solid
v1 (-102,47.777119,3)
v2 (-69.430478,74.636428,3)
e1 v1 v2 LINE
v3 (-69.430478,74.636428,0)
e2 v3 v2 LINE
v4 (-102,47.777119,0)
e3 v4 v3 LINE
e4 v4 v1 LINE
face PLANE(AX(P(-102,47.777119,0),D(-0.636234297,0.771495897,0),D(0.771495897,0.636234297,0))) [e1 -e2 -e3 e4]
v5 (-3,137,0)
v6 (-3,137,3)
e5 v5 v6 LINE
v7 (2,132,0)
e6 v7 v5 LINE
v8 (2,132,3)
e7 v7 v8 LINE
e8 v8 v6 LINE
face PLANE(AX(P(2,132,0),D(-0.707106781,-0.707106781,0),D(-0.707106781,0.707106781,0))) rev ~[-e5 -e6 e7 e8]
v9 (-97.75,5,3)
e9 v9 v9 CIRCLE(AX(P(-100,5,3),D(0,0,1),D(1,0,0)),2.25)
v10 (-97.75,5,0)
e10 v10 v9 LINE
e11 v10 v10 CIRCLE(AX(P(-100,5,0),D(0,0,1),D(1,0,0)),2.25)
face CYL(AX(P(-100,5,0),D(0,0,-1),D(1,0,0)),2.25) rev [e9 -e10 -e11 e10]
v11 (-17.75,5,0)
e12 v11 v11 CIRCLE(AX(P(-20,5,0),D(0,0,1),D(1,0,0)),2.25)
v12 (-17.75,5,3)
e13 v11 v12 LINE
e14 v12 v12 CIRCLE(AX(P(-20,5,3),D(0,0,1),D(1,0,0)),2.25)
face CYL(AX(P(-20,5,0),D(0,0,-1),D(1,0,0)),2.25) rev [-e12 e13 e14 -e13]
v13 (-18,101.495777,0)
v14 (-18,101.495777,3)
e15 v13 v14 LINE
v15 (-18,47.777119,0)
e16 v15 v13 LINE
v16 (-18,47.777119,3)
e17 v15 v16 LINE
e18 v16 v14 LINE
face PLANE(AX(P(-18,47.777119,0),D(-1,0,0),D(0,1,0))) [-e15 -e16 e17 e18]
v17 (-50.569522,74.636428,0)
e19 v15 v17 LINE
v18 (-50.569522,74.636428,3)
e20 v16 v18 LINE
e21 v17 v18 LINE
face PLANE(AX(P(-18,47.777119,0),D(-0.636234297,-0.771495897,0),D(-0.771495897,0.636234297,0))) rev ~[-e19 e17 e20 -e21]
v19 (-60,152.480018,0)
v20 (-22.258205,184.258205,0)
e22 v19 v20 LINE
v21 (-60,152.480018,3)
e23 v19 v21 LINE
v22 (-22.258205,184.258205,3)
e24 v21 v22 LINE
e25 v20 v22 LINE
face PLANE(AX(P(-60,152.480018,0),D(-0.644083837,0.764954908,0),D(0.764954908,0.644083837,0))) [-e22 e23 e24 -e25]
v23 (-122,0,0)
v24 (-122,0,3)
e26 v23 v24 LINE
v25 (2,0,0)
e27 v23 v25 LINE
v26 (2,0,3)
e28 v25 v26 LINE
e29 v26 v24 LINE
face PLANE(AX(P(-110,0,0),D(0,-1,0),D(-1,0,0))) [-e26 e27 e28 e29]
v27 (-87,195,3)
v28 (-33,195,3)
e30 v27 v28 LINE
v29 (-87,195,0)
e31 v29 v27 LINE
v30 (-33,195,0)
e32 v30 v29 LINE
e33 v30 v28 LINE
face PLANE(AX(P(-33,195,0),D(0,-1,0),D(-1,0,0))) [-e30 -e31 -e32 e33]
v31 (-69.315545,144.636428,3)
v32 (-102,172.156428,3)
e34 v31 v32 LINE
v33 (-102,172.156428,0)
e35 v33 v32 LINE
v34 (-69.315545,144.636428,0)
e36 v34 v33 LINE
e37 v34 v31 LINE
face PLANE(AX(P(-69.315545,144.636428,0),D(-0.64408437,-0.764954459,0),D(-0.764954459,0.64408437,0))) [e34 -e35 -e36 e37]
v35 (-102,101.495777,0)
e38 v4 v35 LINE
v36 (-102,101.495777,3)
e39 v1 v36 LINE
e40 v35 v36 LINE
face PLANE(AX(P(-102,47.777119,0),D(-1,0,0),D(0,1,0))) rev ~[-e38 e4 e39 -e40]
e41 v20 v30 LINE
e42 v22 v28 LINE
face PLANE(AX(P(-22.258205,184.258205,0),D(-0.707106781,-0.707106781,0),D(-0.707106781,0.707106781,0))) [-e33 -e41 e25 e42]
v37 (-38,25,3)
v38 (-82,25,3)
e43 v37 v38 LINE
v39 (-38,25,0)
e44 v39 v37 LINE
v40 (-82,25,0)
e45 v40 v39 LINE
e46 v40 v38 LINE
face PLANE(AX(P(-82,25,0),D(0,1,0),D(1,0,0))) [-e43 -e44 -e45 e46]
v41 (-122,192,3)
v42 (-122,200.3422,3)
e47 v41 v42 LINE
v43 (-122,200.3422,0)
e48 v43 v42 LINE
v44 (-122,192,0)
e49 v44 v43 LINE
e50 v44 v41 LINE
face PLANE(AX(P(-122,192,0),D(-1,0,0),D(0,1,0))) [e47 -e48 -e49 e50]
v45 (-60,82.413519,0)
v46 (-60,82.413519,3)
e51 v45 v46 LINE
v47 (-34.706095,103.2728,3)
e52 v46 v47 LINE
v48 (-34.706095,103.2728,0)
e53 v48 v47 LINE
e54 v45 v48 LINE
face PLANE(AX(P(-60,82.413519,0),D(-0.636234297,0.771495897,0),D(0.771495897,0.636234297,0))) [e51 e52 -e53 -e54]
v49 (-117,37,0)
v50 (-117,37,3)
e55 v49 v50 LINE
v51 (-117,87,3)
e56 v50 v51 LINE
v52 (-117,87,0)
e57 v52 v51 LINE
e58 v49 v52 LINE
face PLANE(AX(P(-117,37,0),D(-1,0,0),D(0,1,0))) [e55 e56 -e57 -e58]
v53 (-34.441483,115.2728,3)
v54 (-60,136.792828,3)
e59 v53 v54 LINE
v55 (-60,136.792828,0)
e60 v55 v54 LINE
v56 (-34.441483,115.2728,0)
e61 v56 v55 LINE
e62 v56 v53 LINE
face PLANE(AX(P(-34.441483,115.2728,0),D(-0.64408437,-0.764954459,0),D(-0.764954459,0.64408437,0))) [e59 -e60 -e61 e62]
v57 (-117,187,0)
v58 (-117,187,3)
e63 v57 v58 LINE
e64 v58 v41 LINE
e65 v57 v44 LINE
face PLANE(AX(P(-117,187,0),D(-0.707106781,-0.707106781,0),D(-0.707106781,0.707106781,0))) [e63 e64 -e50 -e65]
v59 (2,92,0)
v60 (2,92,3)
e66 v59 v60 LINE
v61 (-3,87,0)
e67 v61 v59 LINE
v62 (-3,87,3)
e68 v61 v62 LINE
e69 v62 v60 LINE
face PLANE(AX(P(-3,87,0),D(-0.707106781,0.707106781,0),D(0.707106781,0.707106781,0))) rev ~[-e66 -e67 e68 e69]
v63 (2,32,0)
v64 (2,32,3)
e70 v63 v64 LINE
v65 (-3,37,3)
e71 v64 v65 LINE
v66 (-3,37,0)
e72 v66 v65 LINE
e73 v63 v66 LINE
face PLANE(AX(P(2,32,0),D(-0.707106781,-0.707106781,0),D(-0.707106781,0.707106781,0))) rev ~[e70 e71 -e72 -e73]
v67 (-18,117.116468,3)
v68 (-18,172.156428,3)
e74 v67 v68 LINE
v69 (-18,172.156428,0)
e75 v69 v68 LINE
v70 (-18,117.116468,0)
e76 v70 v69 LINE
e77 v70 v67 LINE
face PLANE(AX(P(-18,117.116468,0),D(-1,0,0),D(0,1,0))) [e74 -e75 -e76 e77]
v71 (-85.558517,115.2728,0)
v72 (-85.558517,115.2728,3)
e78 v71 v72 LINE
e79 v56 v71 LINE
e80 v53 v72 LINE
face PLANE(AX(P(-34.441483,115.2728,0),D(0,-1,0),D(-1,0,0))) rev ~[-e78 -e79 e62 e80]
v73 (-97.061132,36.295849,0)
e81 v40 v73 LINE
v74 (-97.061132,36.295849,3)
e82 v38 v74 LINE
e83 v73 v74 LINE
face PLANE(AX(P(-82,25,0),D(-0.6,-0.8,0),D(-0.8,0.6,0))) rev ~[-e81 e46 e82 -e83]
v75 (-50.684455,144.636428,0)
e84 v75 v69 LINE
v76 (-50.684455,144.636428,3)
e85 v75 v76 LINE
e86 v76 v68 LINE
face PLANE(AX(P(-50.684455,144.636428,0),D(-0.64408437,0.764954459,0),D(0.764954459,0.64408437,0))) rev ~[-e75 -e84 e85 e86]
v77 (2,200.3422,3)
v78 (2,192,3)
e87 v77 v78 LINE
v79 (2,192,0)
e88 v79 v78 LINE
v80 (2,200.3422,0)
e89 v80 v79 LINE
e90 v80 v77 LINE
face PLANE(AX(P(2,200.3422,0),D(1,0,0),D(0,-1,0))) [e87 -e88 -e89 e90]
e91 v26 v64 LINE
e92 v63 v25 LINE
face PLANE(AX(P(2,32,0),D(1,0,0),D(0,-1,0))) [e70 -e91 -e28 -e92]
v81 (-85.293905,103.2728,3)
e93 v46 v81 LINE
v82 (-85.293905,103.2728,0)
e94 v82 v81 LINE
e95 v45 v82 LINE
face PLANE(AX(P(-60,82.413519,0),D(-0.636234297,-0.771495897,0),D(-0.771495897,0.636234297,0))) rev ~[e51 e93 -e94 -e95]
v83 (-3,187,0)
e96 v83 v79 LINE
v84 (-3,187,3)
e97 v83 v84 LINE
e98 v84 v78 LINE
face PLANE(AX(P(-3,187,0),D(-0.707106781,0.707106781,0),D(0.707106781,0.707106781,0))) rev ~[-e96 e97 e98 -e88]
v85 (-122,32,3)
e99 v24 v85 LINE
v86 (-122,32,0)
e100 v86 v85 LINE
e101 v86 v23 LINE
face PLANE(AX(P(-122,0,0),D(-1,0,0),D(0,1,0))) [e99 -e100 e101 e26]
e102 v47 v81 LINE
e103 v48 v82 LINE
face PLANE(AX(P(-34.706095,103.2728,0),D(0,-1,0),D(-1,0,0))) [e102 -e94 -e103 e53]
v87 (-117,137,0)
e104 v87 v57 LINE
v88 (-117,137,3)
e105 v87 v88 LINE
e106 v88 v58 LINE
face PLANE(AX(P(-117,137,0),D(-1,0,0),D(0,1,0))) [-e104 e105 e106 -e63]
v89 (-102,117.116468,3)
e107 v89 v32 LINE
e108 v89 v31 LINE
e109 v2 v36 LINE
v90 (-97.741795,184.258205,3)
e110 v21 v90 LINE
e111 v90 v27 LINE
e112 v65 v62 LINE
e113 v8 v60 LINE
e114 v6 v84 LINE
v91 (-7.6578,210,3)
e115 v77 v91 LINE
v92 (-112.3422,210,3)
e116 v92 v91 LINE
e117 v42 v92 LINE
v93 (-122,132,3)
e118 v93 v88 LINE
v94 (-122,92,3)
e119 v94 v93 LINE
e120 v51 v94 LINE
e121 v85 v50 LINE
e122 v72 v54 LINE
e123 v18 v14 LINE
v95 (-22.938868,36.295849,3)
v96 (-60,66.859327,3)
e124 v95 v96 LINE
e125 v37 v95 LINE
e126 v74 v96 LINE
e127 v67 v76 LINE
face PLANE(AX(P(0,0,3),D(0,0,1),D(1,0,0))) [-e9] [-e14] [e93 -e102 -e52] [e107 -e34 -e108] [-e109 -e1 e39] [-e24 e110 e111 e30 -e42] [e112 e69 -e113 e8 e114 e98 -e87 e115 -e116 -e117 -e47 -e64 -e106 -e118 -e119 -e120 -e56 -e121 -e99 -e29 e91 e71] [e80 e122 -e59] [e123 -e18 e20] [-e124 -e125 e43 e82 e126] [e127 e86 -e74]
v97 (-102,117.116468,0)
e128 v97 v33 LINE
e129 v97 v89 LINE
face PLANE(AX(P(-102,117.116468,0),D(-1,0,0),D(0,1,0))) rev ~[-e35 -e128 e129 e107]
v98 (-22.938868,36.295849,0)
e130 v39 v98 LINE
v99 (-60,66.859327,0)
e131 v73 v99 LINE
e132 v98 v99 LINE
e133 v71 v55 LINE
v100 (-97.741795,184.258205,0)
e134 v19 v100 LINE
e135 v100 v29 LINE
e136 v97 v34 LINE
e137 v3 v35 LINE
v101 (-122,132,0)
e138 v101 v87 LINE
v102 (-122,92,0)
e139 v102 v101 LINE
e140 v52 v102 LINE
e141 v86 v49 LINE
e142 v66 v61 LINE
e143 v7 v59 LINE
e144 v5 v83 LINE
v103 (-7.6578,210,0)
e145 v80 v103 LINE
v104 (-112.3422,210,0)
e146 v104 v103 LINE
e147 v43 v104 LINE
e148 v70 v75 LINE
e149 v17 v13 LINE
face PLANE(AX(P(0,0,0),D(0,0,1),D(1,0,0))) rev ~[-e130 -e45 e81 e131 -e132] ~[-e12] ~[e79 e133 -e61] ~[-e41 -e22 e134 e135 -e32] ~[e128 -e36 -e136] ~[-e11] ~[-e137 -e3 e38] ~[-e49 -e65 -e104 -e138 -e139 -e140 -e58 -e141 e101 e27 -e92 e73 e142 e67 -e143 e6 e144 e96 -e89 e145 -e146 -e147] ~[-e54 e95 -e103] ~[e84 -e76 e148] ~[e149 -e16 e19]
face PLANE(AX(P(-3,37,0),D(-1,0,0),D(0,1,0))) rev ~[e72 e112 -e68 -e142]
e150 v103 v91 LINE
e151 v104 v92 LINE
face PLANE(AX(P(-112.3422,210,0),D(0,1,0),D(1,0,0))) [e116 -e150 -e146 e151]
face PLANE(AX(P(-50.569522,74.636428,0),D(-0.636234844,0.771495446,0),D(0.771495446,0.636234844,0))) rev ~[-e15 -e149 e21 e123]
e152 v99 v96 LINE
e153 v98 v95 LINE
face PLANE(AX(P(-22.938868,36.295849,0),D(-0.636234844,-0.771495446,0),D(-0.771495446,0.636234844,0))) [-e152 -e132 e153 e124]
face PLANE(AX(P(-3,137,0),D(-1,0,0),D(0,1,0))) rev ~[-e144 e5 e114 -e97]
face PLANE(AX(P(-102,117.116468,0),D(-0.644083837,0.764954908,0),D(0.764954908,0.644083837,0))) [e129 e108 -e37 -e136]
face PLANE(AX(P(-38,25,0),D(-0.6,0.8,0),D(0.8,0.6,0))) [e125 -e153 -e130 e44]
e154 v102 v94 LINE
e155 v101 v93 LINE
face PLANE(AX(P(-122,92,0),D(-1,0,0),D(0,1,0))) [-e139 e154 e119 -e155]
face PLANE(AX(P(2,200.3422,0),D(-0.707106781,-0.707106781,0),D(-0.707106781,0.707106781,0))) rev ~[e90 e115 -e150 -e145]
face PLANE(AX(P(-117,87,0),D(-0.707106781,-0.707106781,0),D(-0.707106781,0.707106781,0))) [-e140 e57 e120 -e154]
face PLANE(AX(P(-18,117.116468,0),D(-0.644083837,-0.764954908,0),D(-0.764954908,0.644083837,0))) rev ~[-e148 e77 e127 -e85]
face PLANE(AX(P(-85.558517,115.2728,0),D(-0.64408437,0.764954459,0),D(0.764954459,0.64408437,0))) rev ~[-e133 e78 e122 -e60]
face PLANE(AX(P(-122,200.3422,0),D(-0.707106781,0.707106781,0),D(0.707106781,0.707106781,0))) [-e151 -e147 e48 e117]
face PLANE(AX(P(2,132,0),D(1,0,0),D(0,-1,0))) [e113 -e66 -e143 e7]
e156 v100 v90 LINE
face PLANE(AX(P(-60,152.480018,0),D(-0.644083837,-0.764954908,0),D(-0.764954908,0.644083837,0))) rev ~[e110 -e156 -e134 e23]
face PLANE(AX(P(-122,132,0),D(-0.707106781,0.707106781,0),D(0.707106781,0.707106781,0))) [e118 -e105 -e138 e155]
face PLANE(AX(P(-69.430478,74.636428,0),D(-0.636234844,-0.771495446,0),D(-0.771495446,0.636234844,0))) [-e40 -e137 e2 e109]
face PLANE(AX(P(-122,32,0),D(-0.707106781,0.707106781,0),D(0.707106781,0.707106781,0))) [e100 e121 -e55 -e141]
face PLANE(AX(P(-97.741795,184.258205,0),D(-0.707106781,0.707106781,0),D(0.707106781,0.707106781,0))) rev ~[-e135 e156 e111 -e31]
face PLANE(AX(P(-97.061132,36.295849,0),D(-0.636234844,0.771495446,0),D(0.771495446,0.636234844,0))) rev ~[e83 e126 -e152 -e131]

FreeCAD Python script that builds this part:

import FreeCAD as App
import Part
import Sketcher
Q = App.Units.Quantity


def add_polygon(sketch, points):
    """Adds a closed chain of lines whose ends are joined by coincident constraints."""
    first, n = sketch.GeometryCount, len(points)
    for a, b in zip(points, points[1:] + points[:1]):
        sketch.addGeometry(Part.LineSegment(App.Vector(*a, 0), App.Vector(*b, 0)), False)
    for i in range(n):
        sketch.addConstraint(Sketcher.Constraint("Coincident", first + i, 2, first + (i + 1) % n, 1))

doc = App.newDocument("Part")
body = doc.addObject("PartDesign::Body", "Body")

# Sketch on XY plane
sketch1 = body.newObject("Sketcher::SketchObject", "Sketch")
sketch1.AttachmentSupport = (doc.getObject("XY_Plane"), [""])
sketch1.MapMode = "FlatFace"
add_polygon(sketch1, [(-122, 0), (2, 0), (2, 32), (-3, 37), (-3, 87), (2, 92), (2, 132), (-3, 137), (-3, 187), (2, 192), (2, 200.3), (-7.7, 210), (-112.3, 210), (-122, 200.3), (-122, 192), (-117, 187), (-117, 137), (-122, 132), (-122, 92), (-117, 87), (-117, 37), (-122, 32)])  # lines 0-21
sketch1.addGeometry(Part.Circle(App.Vector(-100, 5, 0), App.Vector(0, 0, 1), 2.2), False)  # 22
sketch1.addGeometry(Part.Circle(App.Vector(-20, 5, 0), App.Vector(0, 0, 1), 2.2), False)  # 23
add_polygon(sketch1, [(-22.9, 36.3), (-38, 25), (-82, 25), (-97.1, 36.3), (-60, 66.9)])  # lines 24-28
add_polygon(sketch1, [(-18, 101.5), (-18, 47.8), (-50.6, 74.6)])  # lines 29-31
add_polygon(sketch1, [(-18, 172.2), (-18, 117.1), (-50.7, 144.6)])  # lines 32-34
add_polygon(sketch1, [(-33, 195), (-22.3, 184.3), (-60, 152.5), (-97.7, 184.3), (-87, 195)])  # lines 35-39
add_polygon(sketch1, [(-102, 117.1), (-102, 172.2), (-69.3, 144.6)])  # lines 40-42
add_polygon(sketch1, [(-102, 47.8), (-102, 101.5), (-69.4, 74.6)])  # lines 43-45
add_polygon(sketch1, [(-34.7, 103.3), (-60, 82.4), (-85.3, 103.3)])  # lines 46-48
add_polygon(sketch1, [(-60, 136.8), (-34.4, 115.3), (-85.6, 115.3)])  # lines 49-51
sketch1.addConstraint([
    Sketcher.Constraint("Horizontal", 0),
    Sketcher.Constraint("Vertical", 1),
    Sketcher.Constraint("Vertical", 3),
    Sketcher.Constraint("Vertical", 5),
    Sketcher.Constraint("Vertical", 7),
    Sketcher.Constraint("Vertical", 9),
    Sketcher.Constraint("Horizontal", 11),
    Sketcher.Constraint("Vertical", 13),
    Sketcher.Constraint("Vertical", 15),
    Sketcher.Constraint("Vertical", 17),
    Sketcher.Constraint("Vertical", 19),
    Sketcher.Constraint("Vertical", 21),
    Sketcher.Constraint("Horizontal", 25),
    Sketcher.Constraint("Vertical", 29),
    Sketcher.Constraint("Vertical", 32),
    Sketcher.Constraint("Horizontal", 39),
    Sketcher.Constraint("Vertical", 40),
    Sketcher.Constraint("Vertical", 43),
    Sketcher.Constraint("Horizontal", 48),
    Sketcher.Constraint("Horizontal", 50),
    Sketcher.Constraint("Equal", 22, 23),
    Sketcher.Constraint("PointOnObject", 0, 2, -1),
    Sketcher.Constraint("Perpendicular", 2, 4),
    Sketcher.Constraint("Perpendicular", 4, 6),
    Sketcher.Constraint("Perpendicular", 6, 8),
    Sketcher.Constraint("Perpendicular", 8, 10),
    Sketcher.Constraint("Perpendicular", 10, 12),
    Sketcher.Constraint("Perpendicular", 12, 14),
    Sketcher.Constraint("Perpendicular", 14, 16),
    Sketcher.Constraint("Perpendicular", 16, 18),
    Sketcher.Constraint("Perpendicular", 18, 20),
    Sketcher.Constraint("Parallel", 28, 30),
    Sketcher.Constraint("Parallel", 27, 31),
    Sketcher.Constraint("Perpendicular", 20, 35),
    Sketcher.Constraint("Parallel", 34, 36),
    Sketcher.Constraint("Parallel", 33, 37),
    Sketcher.Constraint("Perpendicular", 35, 38),
    Sketcher.Constraint("Parallel", 37, 41),
    Sketcher.Constraint("Parallel", 36, 42),
    Sketcher.Constraint("Parallel", 30, 44),
    Sketcher.Constraint("Parallel", 31, 45),
    Sketcher.Constraint("Parallel", 45, 46),
    Sketcher.Constraint("Parallel", 44, 47),
    Sketcher.Constraint("Parallel", 41, 49),
    Sketcher.Constraint("Parallel", 42, 51),
    Sketcher.Constraint("Horizontal", 22, 3, 23, 3),
    Sketcher.Constraint("Horizontal", 9, 2, 12, 2),
    Sketcher.Constraint("Horizontal", 8, 2, 13, 2),
    Sketcher.Constraint("Horizontal", 7, 2, 14, 2),
    Sketcher.Constraint("Horizontal", 6, 2, 15, 2),
    Sketcher.Constraint("Horizontal", 5, 2, 16, 2),
    Sketcher.Constraint("Horizontal", 4, 2, 17, 2),
    Sketcher.Constraint("Horizontal", 3, 2, 18, 2),
    Sketcher.Constraint("Horizontal", 2, 2, 19, 2),
    Sketcher.Constraint("Horizontal", 1, 2, 20, 2),
    Sketcher.Constraint("Horizontal", 26, 2, 28, 2),
    Sketcher.Constraint("Horizontal", 35, 2, 37, 2),
    Sketcher.Constraint("Horizontal", 34, 2, 40, 2),
    Sketcher.Constraint("Horizontal", 33, 2, 41, 2),
    Sketcher.Constraint("Horizontal", 32, 2, 42, 2),
    Sketcher.Constraint("Horizontal", 31, 2, 43, 2),
    Sketcher.Constraint("Horizontal", 30, 2, 44, 2),
    Sketcher.Constraint("Horizontal", 29, 2, 45, 2),
    Sketcher.Constraint("Vertical", 1, 2, 4, 2),
    Sketcher.Constraint("Vertical", 3, 2, 6, 2),
    Sketcher.Constraint("Vertical", 5, 2, 8, 2),
    Sketcher.Constraint("Vertical", 13, 2, 16, 2),
    Sketcher.Constraint("Vertical", 31, 2, 32, 2),
    Sketcher.Constraint("Vertical", 27, 2, 36, 2),
    Sketcher.Constraint("Vertical", 42, 2, 43, 2),
    Sketcher.Constraint("Vertical", 36, 2, 46, 2),
    Sketcher.Constraint("Vertical", 46, 2, 51, 2),
    Sketcher.Constraint("Equal", 3, 7),
    Sketcher.Constraint("Equal", 24, 26),
    Sketcher.Constraint("DistanceX", 0, 1, 0, 2, 124.0),
    Sketcher.Constraint("DistanceY", 1, 1, 1, 2, 32.0),
    Sketcher.Constraint("DistanceY", 5, 1, 5, 2, 40.0),
    Sketcher.Constraint("DistanceY", -1, 1, 22, 3, 5.0),
    Sketcher.Constraint("DistanceX", 23, 3, -1, 1, 20.0),
    Sketcher.Constraint("DistanceY", -1, 1, 10, 2, 210.0),
    Sketcher.Constraint("DistanceY", -1, 1, 24, 2, 25.0),
    Sketcher.Constraint("DistanceX", 27, 2, -1, 1, 60.0),
    Sketcher.Constraint("DistanceX", 2, 2, 1, 2, 5.0),
    Sketcher.Constraint("DistanceY", 1, 2, 4, 2, 60.0),
    Sketcher.Constraint("DistanceX", 24, 2, 1, 2, 40.0),
    Sketcher.Constraint("DistanceX", 20, 2, 25, 2, 40.0),
    Sketcher.Constraint("DistanceX", 29, 2, 2, 2, 15.0),
    Sketcher.Constraint("DistanceY", 38, 2, 11, 2, 15.0),
    Sketcher.Constraint("DistanceX", 39, 2, 34, 2, 15.0),
    Sketcher.Constraint("DistanceX", 14, 2, 40, 2, 15.0),
    Sketcher.Constraint("Diameter", 22, 4.5),
    Sketcher.Constraint("DistanceX", 22, 3, -1, 1, 100.0),
    Sketcher.Constraint("DistanceY", 48, 2, 49, 2, 12.0),
    Sketcher.Constraint("DistanceY", 32, 2, 32, 1, 55.04),
    Sketcher.Constraint("Angle", 24, Q("-143.13 deg")),
    Sketcher.Constraint("DistanceX", 50, 2, 50, 1, 51.117),
    Sketcher.Constraint("DistanceY", -1, 1, 36, 2, 152.48),
    Sketcher.Constraint("DistanceY", 50, 2, 51, 2, 21.52),
    Sketcher.Constraint("Distance", 27, 48.038),
    Sketcher.Constraint("Distance", 30, 42.216),
    Sketcher.Constraint("DistanceX", 11, 2, 11, 1, 104.6844),
    Sketcher.Constraint("DistanceX", 48, 1, 48, 2, 50.5878),
    Sketcher.Constraint("DistanceY", 29, 2, 29, 1, 53.7187),
    Sketcher.Constraint("DistanceY", -1, 1, 29, 2, 47.777),
    Sketcher.Constraint("DistanceY", 30, 2, 46, 2, 7.777),
    Sketcher.Constraint("DistanceY", -1, 1, 32, 2, 117.1165),
])
pad1 = body.newObject("PartDesign::Pad", "Pad")
pad1.Profile = sketch1
pad1.Length = 3

doc.recompute()
